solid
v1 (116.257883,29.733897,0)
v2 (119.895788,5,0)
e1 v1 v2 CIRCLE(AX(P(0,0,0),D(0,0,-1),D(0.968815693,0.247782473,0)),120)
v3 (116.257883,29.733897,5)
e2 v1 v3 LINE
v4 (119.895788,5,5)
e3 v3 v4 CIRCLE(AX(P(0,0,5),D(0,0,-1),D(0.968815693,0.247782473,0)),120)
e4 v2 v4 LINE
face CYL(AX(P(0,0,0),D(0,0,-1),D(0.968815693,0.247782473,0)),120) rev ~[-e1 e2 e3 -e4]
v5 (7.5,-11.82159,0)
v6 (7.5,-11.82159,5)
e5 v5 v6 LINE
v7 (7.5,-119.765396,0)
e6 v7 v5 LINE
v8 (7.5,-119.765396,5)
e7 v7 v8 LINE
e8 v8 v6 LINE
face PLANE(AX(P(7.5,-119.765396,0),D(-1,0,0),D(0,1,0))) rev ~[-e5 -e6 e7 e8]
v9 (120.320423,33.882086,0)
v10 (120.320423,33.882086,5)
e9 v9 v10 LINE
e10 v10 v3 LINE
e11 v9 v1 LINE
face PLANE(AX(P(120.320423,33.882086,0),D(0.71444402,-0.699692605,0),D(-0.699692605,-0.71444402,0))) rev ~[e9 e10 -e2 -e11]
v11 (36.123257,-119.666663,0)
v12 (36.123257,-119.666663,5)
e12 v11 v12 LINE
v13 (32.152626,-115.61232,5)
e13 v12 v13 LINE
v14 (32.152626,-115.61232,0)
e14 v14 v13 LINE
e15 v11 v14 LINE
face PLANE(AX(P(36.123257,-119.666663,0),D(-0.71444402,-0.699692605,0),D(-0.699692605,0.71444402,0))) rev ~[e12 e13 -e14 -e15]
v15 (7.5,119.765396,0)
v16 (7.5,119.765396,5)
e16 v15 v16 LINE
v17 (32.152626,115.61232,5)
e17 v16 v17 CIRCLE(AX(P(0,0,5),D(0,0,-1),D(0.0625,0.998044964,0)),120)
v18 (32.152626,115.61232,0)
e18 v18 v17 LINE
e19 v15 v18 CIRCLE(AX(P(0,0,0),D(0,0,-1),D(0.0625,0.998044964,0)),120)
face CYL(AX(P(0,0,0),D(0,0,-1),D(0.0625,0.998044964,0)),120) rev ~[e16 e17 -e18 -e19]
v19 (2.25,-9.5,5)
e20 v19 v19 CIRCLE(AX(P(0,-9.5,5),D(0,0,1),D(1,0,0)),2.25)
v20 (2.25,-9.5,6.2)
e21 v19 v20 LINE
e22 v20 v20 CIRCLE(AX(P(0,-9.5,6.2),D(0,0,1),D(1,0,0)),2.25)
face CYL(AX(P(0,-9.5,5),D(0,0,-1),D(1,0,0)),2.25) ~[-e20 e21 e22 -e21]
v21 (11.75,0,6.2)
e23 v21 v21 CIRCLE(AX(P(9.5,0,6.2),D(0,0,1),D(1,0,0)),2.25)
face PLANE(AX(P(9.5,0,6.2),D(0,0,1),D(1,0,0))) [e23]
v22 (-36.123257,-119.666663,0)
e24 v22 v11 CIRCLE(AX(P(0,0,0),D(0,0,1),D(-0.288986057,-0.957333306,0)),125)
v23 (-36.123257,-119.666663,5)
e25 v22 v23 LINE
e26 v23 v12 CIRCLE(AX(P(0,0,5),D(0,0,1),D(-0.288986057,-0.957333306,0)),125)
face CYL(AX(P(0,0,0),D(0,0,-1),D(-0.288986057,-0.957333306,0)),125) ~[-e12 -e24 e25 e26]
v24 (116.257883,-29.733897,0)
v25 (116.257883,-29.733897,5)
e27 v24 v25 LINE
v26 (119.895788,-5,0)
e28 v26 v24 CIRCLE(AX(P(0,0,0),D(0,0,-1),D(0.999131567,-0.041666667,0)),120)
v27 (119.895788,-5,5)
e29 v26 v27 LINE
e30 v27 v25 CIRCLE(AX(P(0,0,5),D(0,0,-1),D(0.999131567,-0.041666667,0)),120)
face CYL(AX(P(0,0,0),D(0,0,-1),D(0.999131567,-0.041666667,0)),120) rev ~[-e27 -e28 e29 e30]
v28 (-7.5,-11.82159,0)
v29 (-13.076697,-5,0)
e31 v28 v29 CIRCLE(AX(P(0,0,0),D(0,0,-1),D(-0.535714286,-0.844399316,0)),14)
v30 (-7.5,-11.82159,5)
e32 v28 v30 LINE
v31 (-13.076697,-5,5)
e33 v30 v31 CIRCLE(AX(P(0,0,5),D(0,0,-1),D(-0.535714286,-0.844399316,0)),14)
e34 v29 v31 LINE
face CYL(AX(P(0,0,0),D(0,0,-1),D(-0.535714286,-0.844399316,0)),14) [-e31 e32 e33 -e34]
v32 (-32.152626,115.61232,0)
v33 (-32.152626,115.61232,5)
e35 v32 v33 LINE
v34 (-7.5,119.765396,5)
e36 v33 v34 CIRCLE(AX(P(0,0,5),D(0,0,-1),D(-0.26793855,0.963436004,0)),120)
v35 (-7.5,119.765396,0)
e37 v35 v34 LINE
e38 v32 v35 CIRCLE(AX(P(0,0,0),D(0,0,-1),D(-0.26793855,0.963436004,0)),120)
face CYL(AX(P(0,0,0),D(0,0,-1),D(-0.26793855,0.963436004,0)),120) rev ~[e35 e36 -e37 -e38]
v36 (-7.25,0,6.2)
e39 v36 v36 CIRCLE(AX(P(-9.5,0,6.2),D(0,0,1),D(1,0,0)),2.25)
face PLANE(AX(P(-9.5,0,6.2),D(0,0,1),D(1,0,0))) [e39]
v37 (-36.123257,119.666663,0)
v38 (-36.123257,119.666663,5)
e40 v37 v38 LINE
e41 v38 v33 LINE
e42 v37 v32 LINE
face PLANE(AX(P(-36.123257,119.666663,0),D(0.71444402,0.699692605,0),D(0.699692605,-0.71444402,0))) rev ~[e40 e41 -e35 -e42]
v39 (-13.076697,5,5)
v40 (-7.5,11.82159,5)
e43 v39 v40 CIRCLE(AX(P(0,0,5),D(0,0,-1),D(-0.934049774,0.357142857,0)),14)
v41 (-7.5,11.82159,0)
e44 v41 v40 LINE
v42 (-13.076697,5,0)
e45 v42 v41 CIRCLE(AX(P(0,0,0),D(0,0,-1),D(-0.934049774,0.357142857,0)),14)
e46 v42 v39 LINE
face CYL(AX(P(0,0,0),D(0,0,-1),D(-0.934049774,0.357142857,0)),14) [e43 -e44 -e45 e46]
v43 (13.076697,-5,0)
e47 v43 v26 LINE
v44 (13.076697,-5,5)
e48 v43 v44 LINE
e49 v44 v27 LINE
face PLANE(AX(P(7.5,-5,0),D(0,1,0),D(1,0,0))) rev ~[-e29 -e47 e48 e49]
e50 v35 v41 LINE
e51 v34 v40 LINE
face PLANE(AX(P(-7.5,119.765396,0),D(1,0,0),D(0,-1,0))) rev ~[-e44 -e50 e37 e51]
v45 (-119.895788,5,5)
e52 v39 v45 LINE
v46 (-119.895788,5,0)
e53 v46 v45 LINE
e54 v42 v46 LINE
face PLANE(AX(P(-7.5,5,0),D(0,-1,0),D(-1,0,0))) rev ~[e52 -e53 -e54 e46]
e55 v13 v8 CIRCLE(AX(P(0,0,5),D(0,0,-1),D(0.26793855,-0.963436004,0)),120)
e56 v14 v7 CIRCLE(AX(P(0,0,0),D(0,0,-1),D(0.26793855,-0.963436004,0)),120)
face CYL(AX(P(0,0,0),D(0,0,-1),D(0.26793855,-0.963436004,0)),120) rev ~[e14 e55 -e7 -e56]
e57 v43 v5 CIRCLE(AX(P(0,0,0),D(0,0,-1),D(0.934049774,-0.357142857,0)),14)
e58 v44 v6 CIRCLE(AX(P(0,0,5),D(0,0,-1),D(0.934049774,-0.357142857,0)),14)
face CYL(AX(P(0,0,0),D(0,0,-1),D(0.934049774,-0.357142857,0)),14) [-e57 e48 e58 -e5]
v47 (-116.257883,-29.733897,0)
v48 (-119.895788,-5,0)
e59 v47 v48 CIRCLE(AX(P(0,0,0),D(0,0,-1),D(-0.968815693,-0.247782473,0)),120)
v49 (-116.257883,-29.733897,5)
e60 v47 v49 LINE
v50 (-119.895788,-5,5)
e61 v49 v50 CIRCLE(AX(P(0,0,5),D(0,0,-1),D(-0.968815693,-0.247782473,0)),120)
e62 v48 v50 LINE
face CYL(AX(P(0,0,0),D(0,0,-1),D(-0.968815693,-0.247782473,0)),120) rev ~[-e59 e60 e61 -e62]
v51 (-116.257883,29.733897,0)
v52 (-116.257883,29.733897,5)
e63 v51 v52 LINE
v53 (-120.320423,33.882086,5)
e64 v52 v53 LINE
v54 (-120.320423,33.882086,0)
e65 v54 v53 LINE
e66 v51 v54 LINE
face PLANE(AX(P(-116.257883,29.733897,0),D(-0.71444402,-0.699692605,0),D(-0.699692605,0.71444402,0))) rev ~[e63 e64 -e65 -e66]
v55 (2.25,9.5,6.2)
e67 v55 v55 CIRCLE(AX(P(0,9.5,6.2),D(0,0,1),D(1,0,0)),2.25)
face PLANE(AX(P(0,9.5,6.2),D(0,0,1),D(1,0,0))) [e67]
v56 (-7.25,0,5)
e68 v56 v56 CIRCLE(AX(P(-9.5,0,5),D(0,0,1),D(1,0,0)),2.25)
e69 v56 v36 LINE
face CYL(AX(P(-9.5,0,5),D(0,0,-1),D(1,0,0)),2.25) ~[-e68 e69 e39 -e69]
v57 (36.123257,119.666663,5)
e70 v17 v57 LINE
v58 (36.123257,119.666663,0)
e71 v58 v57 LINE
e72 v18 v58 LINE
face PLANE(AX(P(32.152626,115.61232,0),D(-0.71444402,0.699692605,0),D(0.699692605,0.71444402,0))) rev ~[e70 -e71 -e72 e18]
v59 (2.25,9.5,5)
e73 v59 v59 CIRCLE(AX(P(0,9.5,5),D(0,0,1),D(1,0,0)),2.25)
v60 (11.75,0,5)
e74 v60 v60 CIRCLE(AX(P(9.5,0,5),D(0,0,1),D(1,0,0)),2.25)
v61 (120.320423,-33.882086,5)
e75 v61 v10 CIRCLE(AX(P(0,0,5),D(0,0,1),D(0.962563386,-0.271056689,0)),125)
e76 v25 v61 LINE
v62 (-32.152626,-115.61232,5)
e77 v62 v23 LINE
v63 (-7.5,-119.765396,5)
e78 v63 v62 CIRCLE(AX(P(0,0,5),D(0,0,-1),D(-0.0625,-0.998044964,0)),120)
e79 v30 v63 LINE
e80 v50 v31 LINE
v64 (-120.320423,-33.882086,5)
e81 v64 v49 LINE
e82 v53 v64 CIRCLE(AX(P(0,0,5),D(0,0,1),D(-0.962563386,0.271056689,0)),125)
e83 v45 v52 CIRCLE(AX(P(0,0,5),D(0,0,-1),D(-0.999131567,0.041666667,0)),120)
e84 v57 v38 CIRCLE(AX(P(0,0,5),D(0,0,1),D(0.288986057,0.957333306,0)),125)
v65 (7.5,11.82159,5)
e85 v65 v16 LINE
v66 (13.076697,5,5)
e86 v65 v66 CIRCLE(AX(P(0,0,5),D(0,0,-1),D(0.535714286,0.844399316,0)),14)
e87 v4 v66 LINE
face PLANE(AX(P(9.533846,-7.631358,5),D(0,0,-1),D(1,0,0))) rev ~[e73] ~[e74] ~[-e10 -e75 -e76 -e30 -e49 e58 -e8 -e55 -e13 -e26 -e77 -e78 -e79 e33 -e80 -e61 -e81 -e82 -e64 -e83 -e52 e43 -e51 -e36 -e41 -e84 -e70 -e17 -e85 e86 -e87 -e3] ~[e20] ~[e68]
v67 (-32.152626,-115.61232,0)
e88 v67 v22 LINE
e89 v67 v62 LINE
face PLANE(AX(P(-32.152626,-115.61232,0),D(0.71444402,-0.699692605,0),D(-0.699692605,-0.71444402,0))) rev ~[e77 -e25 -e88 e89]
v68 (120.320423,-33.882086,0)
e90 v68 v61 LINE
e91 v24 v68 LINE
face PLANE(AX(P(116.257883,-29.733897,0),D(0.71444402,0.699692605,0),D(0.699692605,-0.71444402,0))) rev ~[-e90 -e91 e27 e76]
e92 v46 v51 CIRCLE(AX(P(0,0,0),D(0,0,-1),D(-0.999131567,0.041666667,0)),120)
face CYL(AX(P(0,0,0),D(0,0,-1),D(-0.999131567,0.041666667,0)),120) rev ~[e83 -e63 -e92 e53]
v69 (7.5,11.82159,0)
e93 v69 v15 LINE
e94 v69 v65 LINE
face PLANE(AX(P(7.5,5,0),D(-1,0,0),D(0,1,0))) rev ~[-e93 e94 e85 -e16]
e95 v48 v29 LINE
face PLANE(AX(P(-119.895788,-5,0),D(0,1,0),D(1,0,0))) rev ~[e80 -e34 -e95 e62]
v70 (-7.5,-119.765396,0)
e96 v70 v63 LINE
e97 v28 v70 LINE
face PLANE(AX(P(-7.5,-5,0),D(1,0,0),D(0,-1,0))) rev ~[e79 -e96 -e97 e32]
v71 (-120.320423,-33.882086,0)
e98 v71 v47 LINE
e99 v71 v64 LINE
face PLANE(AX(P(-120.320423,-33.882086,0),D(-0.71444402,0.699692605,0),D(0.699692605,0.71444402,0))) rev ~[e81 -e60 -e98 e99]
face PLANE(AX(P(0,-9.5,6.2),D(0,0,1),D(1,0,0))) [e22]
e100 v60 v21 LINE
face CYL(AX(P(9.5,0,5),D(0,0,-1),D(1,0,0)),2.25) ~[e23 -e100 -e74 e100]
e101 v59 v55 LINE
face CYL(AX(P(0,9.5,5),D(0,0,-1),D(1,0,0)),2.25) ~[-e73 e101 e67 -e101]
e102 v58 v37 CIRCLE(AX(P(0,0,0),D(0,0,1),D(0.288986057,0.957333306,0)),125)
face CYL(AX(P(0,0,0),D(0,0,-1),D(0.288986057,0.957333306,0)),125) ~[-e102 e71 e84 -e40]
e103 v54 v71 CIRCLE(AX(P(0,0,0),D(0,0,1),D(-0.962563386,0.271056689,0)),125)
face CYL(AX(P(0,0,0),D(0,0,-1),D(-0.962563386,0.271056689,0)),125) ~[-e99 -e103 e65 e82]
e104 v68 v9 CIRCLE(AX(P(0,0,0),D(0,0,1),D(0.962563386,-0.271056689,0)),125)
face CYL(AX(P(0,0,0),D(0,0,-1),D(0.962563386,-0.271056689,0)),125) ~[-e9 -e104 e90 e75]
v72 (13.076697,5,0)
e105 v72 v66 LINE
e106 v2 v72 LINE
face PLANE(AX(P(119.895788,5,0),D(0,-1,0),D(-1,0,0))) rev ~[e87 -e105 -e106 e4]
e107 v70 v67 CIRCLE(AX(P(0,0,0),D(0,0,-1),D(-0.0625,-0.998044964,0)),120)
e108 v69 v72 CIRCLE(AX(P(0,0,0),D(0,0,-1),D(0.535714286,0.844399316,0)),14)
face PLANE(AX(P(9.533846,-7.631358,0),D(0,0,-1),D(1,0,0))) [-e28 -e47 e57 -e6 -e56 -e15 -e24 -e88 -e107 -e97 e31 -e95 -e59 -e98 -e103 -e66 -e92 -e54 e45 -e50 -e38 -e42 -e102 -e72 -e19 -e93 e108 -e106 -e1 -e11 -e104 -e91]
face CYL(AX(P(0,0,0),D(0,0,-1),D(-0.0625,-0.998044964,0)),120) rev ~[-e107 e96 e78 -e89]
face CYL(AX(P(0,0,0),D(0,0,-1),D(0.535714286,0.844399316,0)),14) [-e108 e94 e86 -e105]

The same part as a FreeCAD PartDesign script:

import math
import FreeCAD as App
import Part
import Sketcher

V = App.Vector

doc = App.newDocument("Part")
body = doc.addObject("PartDesign::Body", "Body")

# Sketch on XY plane
sketch1 = body.newObject("Sketcher::SketchObject", "Sketch")
sketch1.AttachmentSupport = (doc.getObject("XY_Plane"), [""])
sketch1.MapMode = "FlatFace"
sketch1.addGeometry(Part.ArcOfCircle(Part.Circle(V(0, 0, 0), V(0, 0, 1), 120), math.radians(-177.61), math.radians(-165.65)), False)
sketch1.addGeometry(Part.LineSegment(V(-120, -5, 0), V(-8, -5, 0)), False)
sketch1.addGeometry(Part.LineSegment(V(-8, -5, 0), V(-8, -120, 0)), False)
sketch1.addGeometry(Part.ArcOfCircle(Part.Circle(V(0, 0, 0), V(0, 0, 1), 120), math.radians(-105.54), math.radians(-93.58)), False)
sketch1.addGeometry(Part.LineSegment(V(-32, -116, 0), V(-36, -120, 0)), False)
sketch1.addGeometry(Part.ArcOfCircle(Part.Circle(V(0, 0, 0), V(0, 0, 1), 125), math.radians(-107), math.radians(-73)), False)
sketch1.addGeometry(Part.LineSegment(V(36, -120, 0), V(32, -116, 0)), False)
sketch1.addGeometry(Part.ArcOfCircle(Part.Circle(V(0, 0, 0), V(0, 0, 1), 120), math.radians(-86.42), math.radians(-74.46)), False)
sketch1.addGeometry(Part.LineSegment(V(8, -120, 0), V(8, -5, 0)), False)
sketch1.addGeometry(Part.LineSegment(V(8, -5, 0), V(120, -5, 0)), False)
sketch1.addGeometry(Part.ArcOfCircle(Part.Circle(V(0, 0, 0), V(0, 0, 1), 120), math.radians(-14.35), math.radians(-2.39)), False)
sketch1.addGeometry(Part.LineSegment(V(116, -30, 0), V(120, -34, 0)), False)
sketch1.addGeometry(Part.ArcOfCircle(Part.Circle(V(0, 0, 0), V(0, 0, 1), 125), math.radians(-16), math.radians(16)), False)
sketch1.addGeometry(Part.LineSegment(V(120, 34, 0), V(116, 30, 0)), False)
sketch1.addGeometry(Part.ArcOfCircle(Part.Circle(V(0, 0, 0), V(0, 0, 1), 120), math.radians(2.39), math.radians(14.35)), False)
sketch1.addGeometry(Part.LineSegment(V(120, 5, 0), V(8, 5, 0)), False)
sketch1.addGeometry(Part.LineSegment(V(8, 5, 0), V(8, 120, 0)), False)
sketch1.addGeometry(Part.ArcOfCircle(Part.Circle(V(0, 0, 0), V(0, 0, 1), 120), math.radians(74.46), math.radians(86.42)), False)
sketch1.addGeometry(Part.LineSegment(V(32, 116, 0), V(36, 120, 0)), False)
sketch1.addGeometry(Part.ArcOfCircle(Part.Circle(V(0, 0, 0), V(0, 0, 1), 125), math.radians(73), math.radians(107)), False)
sketch1.addGeometry(Part.LineSegment(V(-36, 120, 0), V(-32, 116, 0)), False)
sketch1.addGeometry(Part.ArcOfCircle(Part.Circle(V(0, 0, 0), V(0, 0, 1), 120), math.radians(93.58), math.radians(105.54)), False)
sketch1.addGeometry(Part.LineSegment(V(-8, 120, 0), V(-8, 5, 0)), False)
sketch1.addGeometry(Part.LineSegment(V(-8, 5, 0), V(-120, 5, 0)), False)
sketch1.addGeometry(Part.ArcOfCircle(Part.Circle(V(0, 0, 0), V(0, 0, 1), 120), math.radians(165.65), math.radians(177.61)), False)
sketch1.addGeometry(Part.LineSegment(V(-116, 30, 0), V(-120, 34, 0)), False)
sketch1.addGeometry(Part.ArcOfCircle(Part.Circle(V(0, 0, 0), V(0, 0, 1), 125), math.radians(164), math.radians(196)), False)
sketch1.addGeometry(Part.LineSegment(V(-120, -34, 0), V(-116, -30, 0)), False)
sketch1.addConstraint(Sketcher.Constraint("Coincident", 0, 1, 1, 1))
sketch1.addConstraint(Sketcher.Constraint("Coincident", 1, 2, 2, 1))
sketch1.addConstraint(Sketcher.Constraint("Coincident", 2, 2, 3, 2))
sketch1.addConstraint(Sketcher.Constraint("Coincident", 3, 1, 4, 1))
sketch1.addConstraint(Sketcher.Constraint("Coincident", 4, 2, 5, 1))
sketch1.addConstraint(Sketcher.Constraint("Coincident", 5, 2, 6, 1))
sketch1.addConstraint(Sketcher.Constraint("Coincident", 6, 2, 7, 2))
sketch1.addConstraint(Sketcher.Constraint("Coincident", 7, 1, 8, 1))
sketch1.addConstraint(Sketcher.Constraint("Coincident", 8, 2, 9, 1))
sketch1.addConstraint(Sketcher.Constraint("Coincident", 9, 2, 10, 2))
sketch1.addConstraint(Sketcher.Constraint("Coincident", 10, 1, 11, 1))
sketch1.addConstraint(Sketcher.Constraint("Coincident", 11, 2, 12, 1))
sketch1.addConstraint(Sketcher.Constraint("Coincident", 12, 2, 13, 1))
sketch1.addConstraint(Sketcher.Constraint("Coincident", 13, 2, 14, 2))
sketch1.addConstraint(Sketcher.Constraint("Coincident", 14, 1, 15, 1))
sketch1.addConstraint(Sketcher.Constraint("Coincident", 15, 2, 16, 1))
sketch1.addConstraint(Sketcher.Constraint("Coincident", 16, 2, 17, 2))
sketch1.addConstraint(Sketcher.Constraint("Coincident", 17, 1, 18, 1))
sketch1.addConstraint(Sketcher.Constraint("Coincident", 18, 2, 19, 1))
sketch1.addConstraint(Sketcher.Constraint("Coincident", 19, 2, 20, 1))
sketch1.addConstraint(Sketcher.Constraint("Coincident", 20, 2, 21, 2))
sketch1.addConstraint(Sketcher.Constraint("Coincident", 21, 1, 22, 1))
sketch1.addConstraint(Sketcher.Constraint("Coincident", 22, 2, 23, 1))
sketch1.addConstraint(Sketcher.Constraint("Coincident", 23, 2, 24, 2))
sketch1.addConstraint(Sketcher.Constraint("Coincident", 24, 1, 25, 1))
sketch1.addConstraint(Sketcher.Constraint("Coincident", 25, 2, 26, 1))
sketch1.addConstraint(Sketcher.Constraint("Coincident", 26, 2, 27, 1))
sketch1.addConstraint(Sketcher.Constraint("Coincident", 27, 2, 0, 2))
sketch1.addConstraint(Sketcher.Constraint("Horizontal", 1))
sketch1.addConstraint(Sketcher.Constraint("Vertical", 2))
sketch1.addConstraint(Sketcher.Constraint("Vertical", 8))
sketch1.addConstraint(Sketcher.Constraint("Horizontal", 9))
sketch1.addConstraint(Sketcher.Constraint("Horizontal", 15))
sketch1.addConstraint(Sketcher.Constraint("Vertical", 16))
sketch1.addConstraint(Sketcher.Constraint("Vertical", 22))
sketch1.addConstraint(Sketcher.Constraint("Horizontal", 23))
sketch1.addConstraint(Sketcher.Constraint("Coincident", 0, 3, -1, 1))
sketch1.addConstraint(Sketcher.Constraint("Coincident", 3, 3, -1, 1))
sketch1.addConstraint(Sketcher.Constraint("Coincident", 5, 3, -1, 1))
sketch1.addConstraint(Sketcher.Constraint("Coincident", 7, 3, -1, 1))
sketch1.addConstraint(Sketcher.Constraint("Coincident", 10, 3, -1, 1))
sketch1.addConstraint(Sketcher.Constraint("Coincident", 12, 3, -1, 1))
sketch1.addConstraint(Sketcher.Constraint("Coincident", 14, 3, -1, 1))
sketch1.addConstraint(Sketcher.Constraint("Coincident", 17, 3, -1, 1))
sketch1.addConstraint(Sketcher.Constraint("Coincident", 19, 3, -1, 1))
sketch1.addConstraint(Sketcher.Constraint("Coincident", 21, 3, -1, 1))
sketch1.addConstraint(Sketcher.Constraint("Coincident", 24, 3, -1, 1))
sketch1.addConstraint(Sketcher.Constraint("Coincident", 26, 3, -1, 1))
sketch1.addConstraint(Sketcher.Constraint("Equal", 0, 3))
sketch1.addConstraint(Sketcher.Constraint("Equal", 3, 7))
sketch1.addConstraint(Sketcher.Constraint("Equal", 7, 10))
sketch1.addConstraint(Sketcher.Constraint("Equal", 5, 12))
sketch1.addConstraint(Sketcher.Constraint("Equal", 10, 14))
sketch1.addConstraint(Sketcher.Constraint("Equal", 14, 17))
sketch1.addConstraint(Sketcher.Constraint("Equal", 12, 19))
sketch1.addConstraint(Sketcher.Constraint("Equal", 17, 21))
sketch1.addConstraint(Sketcher.Constraint("Equal", 21, 24))
sketch1.addConstraint(Sketcher.Constraint("Equal", 19, 26))
sketch1.addConstraint(Sketcher.Constraint("Symmetric", 1, 2, 15, 2, -1, 1))
sketch1.addConstraint(Sketcher.Constraint("Symmetric", 8, 2, 22, 2, -1, 1))
sketch1.addConstraint(Sketcher.Constraint("Symmetric", 1, 2, 8, 2, -2))
sketch1.addConstraint(Sketcher.Constraint("Parallel", 6, 11))
sketch1.addConstraint(Sketcher.Constraint("Parallel", 4, 13))
sketch1.addConstraint(Sketcher.Constraint("Parallel", 13, 18))
sketch1.addConstraint(Sketcher.Constraint("Parallel", 11, 20))
sketch1.addConstraint(Sketcher.Constraint("Parallel", 20, 25))
sketch1.addConstraint(Sketcher.Constraint("Parallel", 18, 27))
sketch1.addConstraint(Sketcher.Constraint("Horizontal", 4, 2, 5, 2))
sketch1.addConstraint(Sketcher.Constraint("Horizontal", 3, 1, 6, 2))
sketch1.addConstraint(Sketcher.Constraint("Horizontal", 18, 2, 19, 2))
sketch1.addConstraint(Sketcher.Constraint("Horizontal", 13, 2, 24, 1))
sketch1.addConstraint(Sketcher.Constraint("Horizontal", 11, 2, 26, 2))
sketch1.addConstraint(Sketcher.Constraint("Vertical", 11, 2, 12, 2))
sketch1.addConstraint(Sketcher.Constraint("Vertical", 6, 2, 17, 1))
sketch1.addConstraint(Sketcher.Constraint("Radius", 0, 120.0))
sketch1.addConstraint(Sketcher.Constraint("Radius", 5, 125.0))
sketch1.addConstraint(Sketcher.Constraint("DistanceY", 0, 1, -1, 1, 5.0))
sketch1.addConstraint(Sketcher.Constraint("DistanceX", 2, 2, 7, 1, 15.0))
sketch1.addConstraint(Sketcher.Constraint("Distance", 11, 5.806178))
sketch1.addConstraint(Sketcher.Constraint("DistanceY", 3, 1, -1, 1, 115.61232))
sketch1.addConstraint(Sketcher.Constraint("DistanceX", 13, 2, 11, 2, 4.06254))
pad1 = body.newObject("PartDesign::Pad", "Pad")
pad1.Profile = sketch1
pad1.Length = 5

# Sketch on XY plane
sketch2 = body.newObject("Sketcher::SketchObject", "Sketch001")
sketch2.AttachmentSupport = (doc.getObject("XY_Plane"), [""])
sketch2.MapMode = "FlatFace"
sketch2.addGeometry(Part.LineSegment(V(8, -5, 0), V(13, -5, 0)), False)
sketch2.addGeometry(Part.ArcOfCircle(Part.Circle(V(0, 0, 0), V(0, 0, 1), 14), math.radians(-58), math.radians(-21)), False)
sketch2.addGeometry(Part.LineSegment(V(8, -12, 0), V(8, -5, 0)), False)
sketch2.addGeometry(Part.ArcOfCircle(Part.Circle(V(0, 0, 0), V(0, 0, 1), 14), math.radians(21), math.radians(58)), False)
sketch2.addGeometry(Part.LineSegment(V(13, 5, 0), V(8, 5, 0)), False)
sketch2.addGeometry(Part.LineSegment(V(8, 5, 0), V(8, 12, 0)), False)
sketch2.addGeometry(Part.ArcOfCircle(Part.Circle(V(0, 0, 0), V(0, 0, 1), 14), math.radians(122), math.radians(159)), False)
sketch2.addGeometry(Part.LineSegment(V(-8, 12, 0), V(-8, 5, 0)), False)
sketch2.addGeometry(Part.LineSegment(V(-8, 5, 0), V(-13, 5, 0)), False)
sketch2.addGeometry(Part.LineSegment(V(-8, -5, 0), V(-8, -12, 0)), False)
sketch2.addGeometry(Part.ArcOfCircle(Part.Circle(V(0, 0, 0), V(0, 0, 1), 14), math.radians(-159), math.radians(-122)), False)
sketch2.addGeometry(Part.LineSegment(V(-13, -5, 0), V(-8, -5, 0)), False)
sketch2.addConstraint(Sketcher.Constraint("Coincident", 0, 2, 1, 2))
sketch2.addConstraint(Sketcher.Constraint("Coincident", 1, 1, 2, 1))
sketch2.addConstraint(Sketcher.Constraint("Coincident", 2, 2, 0, 1))
sketch2.addConstraint(Sketcher.Constraint("Coincident", 3, 1, 4, 1))
sketch2.addConstraint(Sketcher.Constraint("Coincident", 4, 2, 5, 1))
sketch2.addConstraint(Sketcher.Constraint("Coincident", 5, 2, 3, 2))
sketch2.addConstraint(Sketcher.Constraint("Coincident", 6, 1, 7, 1))
sketch2.addConstraint(Sketcher.Constraint("Coincident", 7, 2, 8, 1))
sketch2.addConstraint(Sketcher.Constraint("Coincident", 8, 2, 6, 2))
sketch2.addConstraint(Sketcher.Constraint("Coincident", 9, 2, 10, 2))
sketch2.addConstraint(Sketcher.Constraint("Coincident", 10, 1, 11, 1))
sketch2.addConstraint(Sketcher.Constraint("Coincident", 11, 2, 9, 1))
sketch2.addConstraint(Sketcher.Constraint("Horizontal", 0))
sketch2.addConstraint(Sketcher.Constraint("Vertical", 2))
sketch2.addConstraint(Sketcher.Constraint("Horizontal", 4))
sketch2.addConstraint(Sketcher.Constraint("Vertical", 5))
sketch2.addConstraint(Sketcher.Constraint("Vertical", 7))
sketch2.addConstraint(Sketcher.Constraint("Horizontal", 8))
sketch2.addConstraint(Sketcher.Constraint("Vertical", 9))
sketch2.addConstraint(Sketcher.Constraint("Horizontal", 11))
sketch2.addConstraint(Sketcher.Constraint("Coincident", 1, 3, -1, 1))
sketch2.addConstraint(Sketcher.Constraint("Coincident", 3, 3, -1, 1))
sketch2.addConstraint(Sketcher.Constraint("Coincident", 6, 3, -1, 1))
sketch2.addConstraint(Sketcher.Constraint("Coincident", 10, 3, -1, 1))
sketch2.addConstraint(Sketcher.Constraint("Equal", 1, 3))
sketch2.addConstraint(Sketcher.Constraint("Equal", 3, 6))
sketch2.addConstraint(Sketcher.Constraint("Equal", 6, 10))
sketch2.addConstraint(Sketcher.Constraint("Symmetric", 2, 2, 7, 2, -1, 1))
sketch2.addConstraint(Sketcher.Constraint("Symmetric", 4, 2, 11, 2, -1, 1))
sketch2.addConstraint(Sketcher.Constraint("Symmetric", 4, 2, 7, 2, -2))
sketch2.addConstraint(Sketcher.Constraint("Radius", 1, 14.0))
sketch2.addConstraint(Sketcher.Constraint("DistanceY", 0, 2, -1, 1, 5.0))
sketch2.addConstraint(Sketcher.Constraint("DistanceX", 6, 1, 5, 2, 15.0))
pad2 = body.newObject("PartDesign::Pad", "Pad001")
pad2.Profile = sketch2
pad2.Length = 5

# Sketch on XY plane
sketch3 = body.newObject("Sketcher::SketchObject", "Sketch002")
sketch3.AttachmentSupport = (doc.getObject("XY_Plane"), [""])
sketch3.MapMode = "FlatFace"
sketch3.AttachmentOffset = App.Placement(V(0, 0, 5), App.Rotation())
sketch3.addGeometry(Part.Circle(V(0, 9.5, 0), V(0, 0, 1), 2.2), False)
sketch3.addGeometry(Part.Circle(V(-9.5, 0, 0), V(0, 0, 1), 2.2), False)
sketch3.addGeometry(Part.Circle(V(0, -9.5, 0), V(0, 0, 1), 2.2), False)
sketch3.addGeometry(Part.Circle(V(9.5, 0, 0), V(0, 0, 1), 2.2), False)
sketch3.addConstraint(Sketcher.Constraint("Equal", 0, 1))
sketch3.addConstraint(Sketcher.Constraint("Equal", 1, 2))
sketch3.addConstraint(Sketcher.Constraint("Equal", 2, 3))
sketch3.addConstraint(Sketcher.Constraint("Symmetric", 0, 3, 2, 3, -1, 1))
sketch3.addConstraint(Sketcher.Constraint("Symmetric", 1, 3, 3, 3, -1, 1))
sketch3.addConstraint(Sketcher.Constraint("PointOnObject", 0, 3, -2))
sketch3.addConstraint(Sketcher.Constraint("PointOnObject", 1, 3, -1))
sketch3.addConstraint(Sketcher.Constraint("Diameter", 0, 4.5))
sketch3.addConstraint(Sketcher.Constraint("DistanceY", 2, 3, 0, 3, 19.0))
sketch3.addConstraint(Sketcher.Constraint("DistanceX", 1, 3, 3, 3, 19.0))
pad3 = body.newObject("PartDesign::Pad", "Pad002")
pad3.Profile = sketch3
pad3.Length = 1.2

doc.recompute()
